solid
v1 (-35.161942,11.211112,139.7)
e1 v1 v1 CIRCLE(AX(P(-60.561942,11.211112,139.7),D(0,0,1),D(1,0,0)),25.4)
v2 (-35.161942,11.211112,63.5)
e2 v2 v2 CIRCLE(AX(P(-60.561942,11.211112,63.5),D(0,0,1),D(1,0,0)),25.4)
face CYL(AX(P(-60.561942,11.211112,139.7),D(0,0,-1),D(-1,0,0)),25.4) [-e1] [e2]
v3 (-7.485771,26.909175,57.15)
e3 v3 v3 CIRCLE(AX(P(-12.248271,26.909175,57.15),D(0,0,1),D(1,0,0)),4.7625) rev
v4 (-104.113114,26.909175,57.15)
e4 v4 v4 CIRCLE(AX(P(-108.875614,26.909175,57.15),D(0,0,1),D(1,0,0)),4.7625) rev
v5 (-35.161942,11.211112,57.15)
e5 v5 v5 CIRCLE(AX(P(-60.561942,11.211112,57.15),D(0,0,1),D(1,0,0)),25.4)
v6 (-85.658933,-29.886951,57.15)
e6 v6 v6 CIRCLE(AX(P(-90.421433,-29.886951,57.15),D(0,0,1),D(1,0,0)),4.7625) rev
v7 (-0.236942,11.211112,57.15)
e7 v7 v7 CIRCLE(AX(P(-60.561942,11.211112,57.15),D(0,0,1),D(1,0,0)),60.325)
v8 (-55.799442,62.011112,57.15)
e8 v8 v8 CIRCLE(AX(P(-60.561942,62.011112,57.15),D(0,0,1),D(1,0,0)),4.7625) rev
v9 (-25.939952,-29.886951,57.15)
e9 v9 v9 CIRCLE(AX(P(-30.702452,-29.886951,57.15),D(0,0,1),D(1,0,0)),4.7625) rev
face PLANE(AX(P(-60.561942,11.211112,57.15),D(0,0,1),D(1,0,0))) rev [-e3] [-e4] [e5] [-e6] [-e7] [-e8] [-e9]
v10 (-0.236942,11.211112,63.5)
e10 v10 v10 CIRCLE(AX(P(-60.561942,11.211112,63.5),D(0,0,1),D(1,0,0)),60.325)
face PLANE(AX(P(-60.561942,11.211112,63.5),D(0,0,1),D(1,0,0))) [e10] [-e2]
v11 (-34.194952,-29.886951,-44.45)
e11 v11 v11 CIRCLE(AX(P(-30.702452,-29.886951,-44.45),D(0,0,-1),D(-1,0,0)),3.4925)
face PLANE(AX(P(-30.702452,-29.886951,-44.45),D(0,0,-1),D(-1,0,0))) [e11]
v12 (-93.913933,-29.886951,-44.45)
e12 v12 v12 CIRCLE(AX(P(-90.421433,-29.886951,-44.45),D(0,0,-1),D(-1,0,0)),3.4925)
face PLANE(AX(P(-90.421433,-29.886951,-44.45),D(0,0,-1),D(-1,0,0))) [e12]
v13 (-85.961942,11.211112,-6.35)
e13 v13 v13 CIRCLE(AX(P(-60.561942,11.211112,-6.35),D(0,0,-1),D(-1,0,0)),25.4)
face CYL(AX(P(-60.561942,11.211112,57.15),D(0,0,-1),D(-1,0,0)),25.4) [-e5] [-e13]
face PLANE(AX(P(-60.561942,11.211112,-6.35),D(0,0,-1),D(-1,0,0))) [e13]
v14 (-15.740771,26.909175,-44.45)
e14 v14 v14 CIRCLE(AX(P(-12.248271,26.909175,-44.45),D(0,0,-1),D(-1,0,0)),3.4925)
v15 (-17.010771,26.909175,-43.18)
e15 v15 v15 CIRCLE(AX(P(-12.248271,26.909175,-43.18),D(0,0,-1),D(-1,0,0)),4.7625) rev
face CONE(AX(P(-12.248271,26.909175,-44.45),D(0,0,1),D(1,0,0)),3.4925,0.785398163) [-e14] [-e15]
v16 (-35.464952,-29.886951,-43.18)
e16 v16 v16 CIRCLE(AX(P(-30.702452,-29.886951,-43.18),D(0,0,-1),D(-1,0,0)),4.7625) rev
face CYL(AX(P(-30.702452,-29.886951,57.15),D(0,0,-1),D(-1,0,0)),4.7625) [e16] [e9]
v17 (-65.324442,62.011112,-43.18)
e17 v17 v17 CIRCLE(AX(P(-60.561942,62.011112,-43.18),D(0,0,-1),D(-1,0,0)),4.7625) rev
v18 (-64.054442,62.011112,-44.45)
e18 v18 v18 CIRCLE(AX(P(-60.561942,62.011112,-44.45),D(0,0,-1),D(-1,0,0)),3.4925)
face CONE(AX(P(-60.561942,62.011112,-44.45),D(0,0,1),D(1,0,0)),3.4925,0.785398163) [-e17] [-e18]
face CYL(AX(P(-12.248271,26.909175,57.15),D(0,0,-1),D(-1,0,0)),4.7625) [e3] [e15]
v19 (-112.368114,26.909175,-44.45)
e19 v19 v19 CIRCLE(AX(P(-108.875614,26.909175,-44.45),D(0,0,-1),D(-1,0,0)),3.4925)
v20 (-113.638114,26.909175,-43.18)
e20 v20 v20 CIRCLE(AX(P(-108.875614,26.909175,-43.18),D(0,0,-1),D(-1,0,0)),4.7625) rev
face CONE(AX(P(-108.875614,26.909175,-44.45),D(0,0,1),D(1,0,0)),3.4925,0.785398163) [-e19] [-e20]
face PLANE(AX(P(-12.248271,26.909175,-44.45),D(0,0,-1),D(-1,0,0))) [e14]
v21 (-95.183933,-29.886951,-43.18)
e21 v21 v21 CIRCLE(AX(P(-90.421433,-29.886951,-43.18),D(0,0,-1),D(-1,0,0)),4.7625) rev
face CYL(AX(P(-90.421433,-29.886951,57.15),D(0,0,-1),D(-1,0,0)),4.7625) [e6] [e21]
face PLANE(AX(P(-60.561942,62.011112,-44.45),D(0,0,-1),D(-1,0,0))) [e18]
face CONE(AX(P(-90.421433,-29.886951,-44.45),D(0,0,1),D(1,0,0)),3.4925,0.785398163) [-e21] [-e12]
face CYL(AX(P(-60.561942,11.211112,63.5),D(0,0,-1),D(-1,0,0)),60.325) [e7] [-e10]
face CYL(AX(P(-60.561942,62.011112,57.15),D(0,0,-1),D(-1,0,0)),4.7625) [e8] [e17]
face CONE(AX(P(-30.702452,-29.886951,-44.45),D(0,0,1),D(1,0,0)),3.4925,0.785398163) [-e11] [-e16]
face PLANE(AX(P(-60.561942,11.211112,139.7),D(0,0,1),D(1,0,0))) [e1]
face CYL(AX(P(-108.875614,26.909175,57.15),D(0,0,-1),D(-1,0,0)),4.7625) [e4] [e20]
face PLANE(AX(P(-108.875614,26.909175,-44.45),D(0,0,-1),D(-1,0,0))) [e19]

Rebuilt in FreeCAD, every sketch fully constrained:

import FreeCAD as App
import Part
import Sketcher
Q = App.Units.Quantity


def edges_at(feature, points):
    """Names of the edges that pass closest to the given points."""
    edges = feature.Shape.Edges
    near = lambda p: min(range(len(edges)), key=lambda i: edges[i].distToShape(Part.Vertex(*p))[0])
    return sorted({f"Edge{near(p) + 1}" for p in points})

doc = App.newDocument("Part")
body = doc.addObject("PartDesign::Body", "Body")

sketch1 = body.newObject("Sketcher::SketchObject", "Sketch")
sketch1.AttachmentSupport = (doc.getObject("XY_Plane"), [""])
sketch1.MapMode = "FlatFace"
sketch1.addGeometry(Part.Circle(App.Vector(-60.561942, 11.211112, 0), App.Vector(0, 0, 1), 25.4), False)
sketch1.addConstraint(Sketcher.Constraint("Diameter", 0, Q("2 in")))
sketch1.addConstraint(Sketcher.Constraint("DistanceX", 0, 3, -1, 1, Q("60.561942 mm")))
sketch1.addConstraint(Sketcher.Constraint("DistanceY", -1, 1, 0, 3, Q("11.211112 mm")))
pad1 = body.newObject("PartDesign::Pad", "Pad")
pad1.Profile = sketch1
pad1.Length = Q("2.25 in")
body2 = doc.addObject("PartDesign::Body", "Body001")

sketch2 = body2.newObject("Sketcher::SketchObject", "Sketch001")
sketch2.AttachmentSupport = (doc.getObject("XY_Plane001"), [""])
sketch2.MapMode = "FlatFace"
sketch2.addGeometry(Part.Circle(App.Vector(-12.248271, 26.909175, 0), App.Vector(0, 0, 1), 4.7625), False)
sketch2.addConstraint(Sketcher.Constraint("Diameter", 0, Q("0.375 in")))
sketch2.addConstraint(Sketcher.Constraint("DistanceX", 0, 3, -1, 1, Q("12.248271 mm")))
sketch2.addConstraint(Sketcher.Constraint("DistanceY", -1, 1, 0, 3, Q("26.909175 mm")))
pad2 = body2.newObject("PartDesign::Pad", "Pad001")
pad2.Profile = sketch2
pad2.Length = Q("2.25 in")
body3 = doc.addObject("PartDesign::Body", "Body002")

sketch3 = body3.newObject("Sketcher::SketchObject", "Sketch002")
sketch3.AttachmentSupport = (doc.getObject("XY_Plane002"), [""])
sketch3.MapMode = "FlatFace"
sketch3.addGeometry(Part.Circle(App.Vector(-60.561942, 62.011112, 0), App.Vector(0, 0, 1), 4.7625), False)
sketch3.addConstraint(Sketcher.Constraint("Diameter", 0, Q("0.375 in")))
sketch3.addConstraint(Sketcher.Constraint("DistanceX", 0, 3, -1, 1, Q("60.561942 mm")))
sketch3.addConstraint(Sketcher.Constraint("DistanceY", -1, 1, 0, 3, Q("62.011112 mm")))
pad3 = body3.newObject("PartDesign::Pad", "Pad002")
pad3.Profile = sketch3
pad3.Length = Q("2.25 in")
body4 = doc.addObject("PartDesign::Body", "Body003")

sketch4 = body4.newObject("Sketcher::SketchObject", "Sketch003")
sketch4.AttachmentSupport = (doc.getObject("XY_Plane003"), [""])
sketch4.MapMode = "FlatFace"
sketch4.addGeometry(Part.Circle(App.Vector(-108.875614, 26.909175, 0), App.Vector(0, 0, 1), 4.7625), False)
sketch4.addConstraint(Sketcher.Constraint("Diameter", 0, Q("0.375 in")))
sketch4.addConstraint(Sketcher.Constraint("DistanceX", 0, 3, -1, 1, Q("108.875614 mm")))
sketch4.addConstraint(Sketcher.Constraint("DistanceY", -1, 1, 0, 3, Q("26.909175 mm")))
pad4 = body4.newObject("PartDesign::Pad", "Pad003")
pad4.Profile = sketch4
pad4.Length = Q("2.25 in")
body5 = doc.addObject("PartDesign::Body", "Body004")

sketch5 = body5.newObject("Sketcher::SketchObject", "Sketch004")
sketch5.AttachmentSupport = (doc.getObject("XY_Plane004"), [""])
sketch5.MapMode = "FlatFace"
sketch5.addGeometry(Part.Circle(App.Vector(-90.421433, -29.886951, 0), App.Vector(0, 0, 1), 4.7625), False)
sketch5.addConstraint(Sketcher.Constraint("Diameter", 0, Q("0.375 in")))
sketch5.addConstraint(Sketcher.Constraint("DistanceY", 0, 3, -1, 1, Q("29.886951 mm")))
sketch5.addConstraint(Sketcher.Constraint("DistanceX", 0, 3, -1, 1, Q("90.421433 mm")))
pad5 = body5.newObject("PartDesign::Pad", "Pad004")
pad5.Profile = sketch5
pad5.Length = Q("2.25 in")
body6 = doc.addObject("PartDesign::Body", "Body005")

sketch6 = body6.newObject("Sketcher::SketchObject", "Sketch005")
sketch6.AttachmentSupport = (doc.getObject("XY_Plane005"), [""])
sketch6.MapMode = "FlatFace"
sketch6.addGeometry(Part.Circle(App.Vector(-30.702452, -29.886951, 0), App.Vector(0, 0, 1), 4.7625), False)
sketch6.addConstraint(Sketcher.Constraint("Diameter", 0, Q("0.375 in")))
sketch6.addConstraint(Sketcher.Constraint("DistanceX", 0, 3, -1, 1, Q("30.702452 mm")))
sketch6.addConstraint(Sketcher.Constraint("DistanceY", 0, 3, -1, 1, Q("29.886951 mm")))
pad6 = body6.newObject("PartDesign::Pad", "Pad005")
pad6.Profile = sketch6
pad6.Length = Q("2.25 in")
body.AllowCompound = True
doc.recompute()

boolean = body.newObject("PartDesign::Boolean", "Boolean")
boolean.Type = "Fuse"
boolean.addObjects([body2])
doc.recompute()

boolean2 = body.newObject("PartDesign::Boolean", "Boolean001")
boolean2.Type = "Fuse"
boolean2.addObjects([body3])
doc.recompute()

boolean3 = body.newObject("PartDesign::Boolean", "Boolean002")
boolean3.Type = "Fuse"
boolean3.addObjects([body4])
doc.recompute()

boolean4 = body.newObject("PartDesign::Boolean", "Boolean003")
boolean4.Type = "Fuse"
boolean4.addObjects([body5])
doc.recompute()

boolean5 = body.newObject("PartDesign::Boolean", "Boolean004")
boolean5.Type = "Fuse"
boolean5.addObjects([body6])

sketch7 = body.newObject("Sketcher::SketchObject", "Sketch006")
sketch7.AttachmentSupport = (doc.getObject("XY_Plane"), [""])
sketch7.MapMode = "FlatFace"
sketch7.AttachmentOffset = App.Placement(App.Vector(0, 0, 2.25 * 25.4), App.Rotation())
sketch7.addGeometry(Part.Circle(App.Vector(-60.561942, 11.211112, 0), App.Vector(0, 0, 1), 60.325), False)
sketch7.addConstraint(Sketcher.Constraint("Diameter", 0, Q("4.75 in")))
sketch7.addConstraint(Sketcher.Constraint("DistanceX", 0, 3, -1, 1, Q("60.561942 mm")))
sketch7.addConstraint(Sketcher.Constraint("DistanceY", -1, 1, 0, 3, Q("11.211112 mm")))
pad7 = body.newObject("PartDesign::Pad", "Pad006")
pad7.Profile = sketch7
pad7.Length = Q("0.25 in")

sketch8 = body.newObject("Sketcher::SketchObject", "Sketch007")
sketch8.AttachmentSupport = (doc.getObject("XY_Plane"), [""])
sketch8.MapMode = "FlatFace"
sketch8.addGeometry(Part.Circle(App.Vector(-60.561942, 11.211112, 0), App.Vector(0, 0, 1), 25.4), False)
sketch8.addConstraint(Sketcher.Constraint("Diameter", 0, Q("2 in")))
sketch8.addConstraint(Sketcher.Constraint("DistanceX", 0, 3, -1, 1, Q("60.561942 mm")))
sketch8.addConstraint(Sketcher.Constraint("DistanceY", -1, 1, 0, 3, Q("11.211112 mm")))
pad8 = body.newObject("PartDesign::Pad", "Pad007")
pad8.Profile = sketch8
pad8.Length = Q("0.25 in")
pad8.Reversed = True

sketch9 = body.newObject("Sketcher::SketchObject", "Sketch008")
sketch9.AttachmentSupport = (doc.getObject("XY_Plane"), [""])
sketch9.MapMode = "FlatFace"
sketch9.addGeometry(Part.Circle(App.Vector(-12.248271, 26.909175, 0), App.Vector(0, 0, 1), 4.7625), False)
sketch9.addGeometry(Part.Circle(App.Vector(-30.702452, -29.886951, 0), App.Vector(0, 0, 1), 4.7625), False)
sketch9.addGeometry(Part.Circle(App.Vector(-90.421433, -29.886951, 0), App.Vector(0, 0, 1), 4.7625), False)
sketch9.addGeometry(Part.Circle(App.Vector(-108.875614, 26.909175, 0), App.Vector(0, 0, 1), 4.7625), False)
sketch9.addGeometry(Part.Circle(App.Vector(-60.561942, 62.011112, 0), App.Vector(0, 0, 1), 4.7625), False)
sketch9.addConstraint(Sketcher.Constraint("Equal", 0, 1))
sketch9.addConstraint(Sketcher.Constraint("Equal", 1, 2))
sketch9.addConstraint(Sketcher.Constraint("Equal", 2, 3))
sketch9.addConstraint(Sketcher.Constraint("Equal", 3, 4))
sketch9.addConstraint(Sketcher.Constraint("Horizontal", 1, 3, 2, 3))
sketch9.addConstraint(Sketcher.Constraint("Horizontal", 0, 3, 3, 3))
sketch9.addConstraint(Sketcher.Constraint("Diameter", 0, Q("0.375 in")))
sketch9.addConstraint(Sketcher.Constraint("DistanceX", 0, 3, -1, 1, Q("12.248271 mm")))
sketch9.addConstraint(Sketcher.Constraint("DistanceX", 1, 3, -1, 1, Q("30.702452 mm")))
sketch9.addConstraint(Sketcher.Constraint("DistanceY", 1, 3, -1, 1, Q("29.886951 mm")))
sketch9.addConstraint(Sketcher.Constraint("DistanceX", 2, 3, 1, 3, Q("59.718982 mm")))
sketch9.addConstraint(Sketcher.Constraint("DistanceX", 3, 3, 2, 3, Q("18.45418 mm")))
sketch9.addConstraint(Sketcher.Constraint("DistanceX", 4, 3, 0, 3, Q("48.313671 mm")))
sketch9.addConstraint(Sketcher.Constraint("DistanceY", -1, 1, 0, 3, Q("26.909175 mm")))
sketch9.addConstraint(Sketcher.Constraint("DistanceY", -1, 1, 4, 3, Q("62.011112 mm")))
pad9 = body.newObject("PartDesign::Pad", "Pad008")
pad9.Profile = sketch9
pad9.Length = Q("1.75 in")
pad9.Reversed = True
doc.recompute()

chamfer = body.newObject("PartDesign::Chamfer", "Chamfer")
chamfer.Base = (pad9, edges_at(pad9, [
    (-7.486, 26.909, -44.45),
    (-25.94, -29.887, -44.45),
    (-85.659, -29.887, -44.45),
    (-104.113, 26.909, -44.45),
    (-55.799, 62.011, -44.45),
]))
chamfer.Size = Q("0.05 in")

sketch10 = body.newObject("Sketcher::SketchObject", "Sketch009")
sketch10.AttachmentSupport = (doc.getObject("XY_Plane"), [""])
sketch10.MapMode = "FlatFace"
sketch10.AttachmentOffset = App.Placement(App.Vector(0, 0, 2.5 * 25.4), App.Rotation())
sketch10.addGeometry(Part.Circle(App.Vector(-60.561942, 11.211112, 0), App.Vector(0, 0, 1), 25.4), False)
sketch10.addConstraint(Sketcher.Constraint("Diameter", 0, Q("2 in")))
sketch10.addConstraint(Sketcher.Constraint("DistanceX", 0, 3, -1, 1, Q("60.561942 mm")))
sketch10.addConstraint(Sketcher.Constraint("DistanceY", -1, 1, 0, 3, Q("11.211112 mm")))
pad10 = body.newObject("PartDesign::Pad", "Pad009")
pad10.Profile = sketch10
pad10.Length = Q("3 in")

doc.recompute()
